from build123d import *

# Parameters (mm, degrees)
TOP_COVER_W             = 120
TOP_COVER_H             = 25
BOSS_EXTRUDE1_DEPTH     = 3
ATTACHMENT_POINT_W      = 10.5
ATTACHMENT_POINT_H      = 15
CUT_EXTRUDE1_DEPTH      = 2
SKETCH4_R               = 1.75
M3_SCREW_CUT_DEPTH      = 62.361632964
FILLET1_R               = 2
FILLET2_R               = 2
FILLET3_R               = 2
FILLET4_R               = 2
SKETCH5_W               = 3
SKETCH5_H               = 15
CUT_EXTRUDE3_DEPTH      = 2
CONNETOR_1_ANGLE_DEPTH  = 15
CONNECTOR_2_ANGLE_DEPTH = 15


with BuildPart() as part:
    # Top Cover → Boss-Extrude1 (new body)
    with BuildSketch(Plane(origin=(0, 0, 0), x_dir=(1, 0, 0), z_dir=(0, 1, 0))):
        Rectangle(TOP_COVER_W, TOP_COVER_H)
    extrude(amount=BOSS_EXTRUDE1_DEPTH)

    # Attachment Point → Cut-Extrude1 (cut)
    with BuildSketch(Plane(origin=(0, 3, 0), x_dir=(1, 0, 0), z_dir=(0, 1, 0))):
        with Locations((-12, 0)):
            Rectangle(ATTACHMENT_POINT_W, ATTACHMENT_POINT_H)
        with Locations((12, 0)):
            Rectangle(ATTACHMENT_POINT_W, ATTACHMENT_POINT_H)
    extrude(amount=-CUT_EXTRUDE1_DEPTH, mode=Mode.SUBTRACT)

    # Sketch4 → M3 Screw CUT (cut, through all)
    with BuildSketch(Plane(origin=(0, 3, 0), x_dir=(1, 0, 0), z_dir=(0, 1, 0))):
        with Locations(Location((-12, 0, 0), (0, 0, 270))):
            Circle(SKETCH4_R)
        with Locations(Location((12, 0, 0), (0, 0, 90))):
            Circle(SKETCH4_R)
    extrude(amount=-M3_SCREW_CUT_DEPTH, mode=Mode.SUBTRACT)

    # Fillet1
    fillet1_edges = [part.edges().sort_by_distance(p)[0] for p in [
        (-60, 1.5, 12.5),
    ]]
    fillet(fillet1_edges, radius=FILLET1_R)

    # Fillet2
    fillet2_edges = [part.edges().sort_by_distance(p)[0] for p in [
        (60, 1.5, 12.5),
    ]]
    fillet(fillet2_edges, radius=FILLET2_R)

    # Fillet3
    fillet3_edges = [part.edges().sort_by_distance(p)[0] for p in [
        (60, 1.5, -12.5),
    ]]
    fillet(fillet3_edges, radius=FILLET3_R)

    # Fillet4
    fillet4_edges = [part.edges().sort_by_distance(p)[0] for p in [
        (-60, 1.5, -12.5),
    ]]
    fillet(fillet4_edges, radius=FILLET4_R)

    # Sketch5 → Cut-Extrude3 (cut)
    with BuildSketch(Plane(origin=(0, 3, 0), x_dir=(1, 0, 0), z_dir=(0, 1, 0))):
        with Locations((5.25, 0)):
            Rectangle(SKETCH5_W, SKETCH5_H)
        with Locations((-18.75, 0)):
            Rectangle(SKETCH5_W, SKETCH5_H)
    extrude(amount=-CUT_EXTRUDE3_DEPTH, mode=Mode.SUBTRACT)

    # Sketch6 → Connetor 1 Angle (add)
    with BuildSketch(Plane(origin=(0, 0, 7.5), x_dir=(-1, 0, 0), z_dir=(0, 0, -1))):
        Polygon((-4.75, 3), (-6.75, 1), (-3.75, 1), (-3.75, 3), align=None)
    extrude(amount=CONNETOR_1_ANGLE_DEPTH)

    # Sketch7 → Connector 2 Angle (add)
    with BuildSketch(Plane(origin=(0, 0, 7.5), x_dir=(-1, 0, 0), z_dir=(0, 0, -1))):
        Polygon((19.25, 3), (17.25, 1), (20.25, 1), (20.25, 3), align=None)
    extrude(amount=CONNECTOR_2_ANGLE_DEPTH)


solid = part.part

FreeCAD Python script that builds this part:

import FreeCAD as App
import Part
import Sketcher


def edges_at(feature, points):
    """Names of the edges that pass closest to the given points."""
    edges = feature.Shape.Edges
    near = lambda p: min(range(len(edges)), key=lambda i: edges[i].distToShape(Part.Vertex(*p))[0])
    return sorted({f"Edge{near(p) + 1}" for p in points})


def add_polygon(sketch, points):
    """Adds a closed chain of lines whose ends are joined by coincident constraints."""
    first, n = sketch.GeometryCount, len(points)
    for a, b in zip(points, points[1:] + points[:1]):
        sketch.addGeometry(Part.LineSegment(App.Vector(*a, 0), App.Vector(*b, 0)), False)
    for i in range(n):
        sketch.addConstraint(Sketcher.Constraint("Coincident", first + i, 2, first + (i + 1) % n, 1))

doc = App.newDocument("Part")
body = doc.addObject("PartDesign::Body", "Body")

# Sketch on XZ plane
sketch1 = doc.addObject("Sketcher::SketchObject", "Sketch")
body.addObject(sketch1)
sketch1.AttachmentSupport = (doc.XZ_Plane, [""])
sketch1.MapMode = "FlatFace"
add_polygon(sketch1, [(-60, -12), (-60, 12), (60, 12), (60, -12)])  # lines 0-3
sketch1.addConstraint([
    Sketcher.Constraint("Vertical", 0),
    Sketcher.Constraint("Horizontal", 1),
    Sketcher.Constraint("Vertical", 2),
    Sketcher.Constraint("Horizontal", 3),
    Sketcher.Constraint("Symmetric", 0, 2, 2, 2, -1, 1),
    Sketcher.Constraint("DistanceX", 1, 1, 1, 2, 120.0),
    Sketcher.Constraint("DistanceY", 0, 1, 0, 2, 25.0),
])
pad1 = doc.addObject("PartDesign::Pad", "Pad")
body.addObject(pad1)
pad1.Profile = sketch1
pad1.Length = 3
pad1.Reversed = True

# Sketch on XZ plane
sketch2 = doc.addObject("Sketcher::SketchObject", "Sketch001")
body.addObject(sketch2)
sketch2.AttachmentSupport = (doc.XZ_Plane, [""])
sketch2.MapMode = "FlatFace"
sketch2.AttachmentOffset = App.Placement(App.Vector(0, 0, -3), App.Rotation())
add_polygon(sketch2, [(-17, -8), (-17, 8), (-7, 8), (-7, -8)])  # lines 0-3
add_polygon(sketch2, [(7, -8), (7, 8), (17, 8), (17, -8)])  # lines 4-7
sketch2.addConstraint([
    Sketcher.Constraint("Vertical", 0),
    Sketcher.Constraint("Horizontal", 1),
    Sketcher.Constraint("Vertical", 2),
    Sketcher.Constraint("Horizontal", 3),
    Sketcher.Constraint("Vertical", 4),
    Sketcher.Constraint("Horizontal", 5),
    Sketcher.Constraint("Vertical", 6),
    Sketcher.Constraint("Horizontal", 7),
    Sketcher.Constraint("Symmetric", 2, 2, 4, 2, -1, 1),
    Sketcher.Constraint("Symmetric", 0, 2, 6, 2, -1, 1),
    Sketcher.Constraint("Horizontal", 1, 2, 4, 2),
    Sketcher.Constraint("DistanceY", 0, 1, 0, 2, 15.0),
    Sketcher.Constraint("DistanceX", 1, 1, 1, 2, 10.5),
    Sketcher.Constraint("DistanceX", 0, 2, 4, 2, 24.0),
])
pocket1 = doc.addObject("PartDesign::Pocket", "Pocket")
body.addObject(pocket1)
pocket1.Profile = sketch2
pocket1.Length = 2
pocket1.Reversed = True

# Sketch on XZ plane
sketch3 = doc.addObject("Sketcher::SketchObject", "Sketch002")
body.addObject(sketch3)
sketch3.AttachmentSupport = (doc.XZ_Plane, [""])
sketch3.MapMode = "FlatFace"
sketch3.AttachmentOffset = App.Placement(App.Vector(0, 0, -3), App.Rotation())
sketch3.addGeometry([
    Part.Circle(App.Vector(-12, 0, 0), App.Vector(0, 0, 1), 1.8),
    Part.Circle(App.Vector(12, 0, 0), App.Vector(0, 0, 1), 1.8),
], False)
sketch3.addConstraint([
    Sketcher.Constraint("Equal", 0, 1),
    Sketcher.Constraint("Symmetric", 0, 3, 1, 3, -1, 1),
    Sketcher.Constraint("PointOnObject", 0, 3, -1),
    Sketcher.Constraint("Diameter", 0, 3.5),
    Sketcher.Constraint("DistanceX", 0, 3, -1, 1, 12.0),
])
pocket2 = doc.addObject("PartDesign::Pocket", "Pocket001")
body.addObject(pocket2)
pocket2.Profile = sketch3
pocket2.Type = "ThroughAll"
pocket2.Reversed = True
doc.recompute()

fillet = doc.addObject("PartDesign::Fillet", "Fillet")
body.addObject(fillet)
fillet.Base = (pocket2, edges_at(pocket2, [(-60, 1.5, 12.5)]))
fillet.Radius = 2
doc.recompute()

fillet2 = doc.addObject("PartDesign::Fillet", "Fillet001")
body.addObject(fillet2)
fillet2.Base = (fillet, edges_at(fillet, [(60, 1.5, 12.5)]))
fillet2.Radius = 2
doc.recompute()

fillet3 = doc.addObject("PartDesign::Fillet", "Fillet002")
body.addObject(fillet3)
fillet3.Base = (fillet2, edges_at(fillet2, [(60, 1.5, -12.5)]))
fillet3.Radius = 2
doc.recompute()

fillet4 = doc.addObject("PartDesign::Fillet", "Fillet003")
body.addObject(fillet4)
fillet4.Base = (fillet3, edges_at(fillet3, [(-60, 1.5, -12.5)]))
fillet4.Radius = 2

# Sketch on XZ plane
sketch4 = doc.addObject("Sketcher::SketchObject", "Sketch003")
body.addObject(sketch4)
sketch4.AttachmentSupport = (doc.XZ_Plane, [""])
sketch4.MapMode = "FlatFace"
sketch4.AttachmentOffset = App.Placement(App.Vector(0, 0, -3), App.Rotation())
add_polygon(sketch4, [(3.8, -7.5), (3.8, 7.5), (6.8, 7.5), (6.8, -7.5)])  # lines 0-3
add_polygon(sketch4, [(-20.2, -7.5), (-20.2, 7.5), (-17.2, 7.5), (-17.2, -7.5)])  # lines 4-7
sketch4.addConstraint([
    Sketcher.Constraint("Vertical", 0),
    Sketcher.Constraint("Horizontal", 1),
    Sketcher.Constraint("Vertical", 2),
    Sketcher.Constraint("Horizontal", 3),
    Sketcher.Constraint("Vertical", 4),
    Sketcher.Constraint("Horizontal", 5),
    Sketcher.Constraint("Vertical", 6),
    Sketcher.Constraint("Horizontal", 7),
    Sketcher.Constraint("Horizontal", 1, 2, 4, 2),
    Sketcher.Constraint("Horizontal", 3, 2, 6, 2),
    Sketcher.Constraint("Equal", 3, 5),
    Sketcher.Constraint("DistanceX", 1, 1, 1, 2, 3.0),
    Sketcher.Constraint("DistanceY", 0, 1, 0, 2, 15.0),
    Sketcher.Constraint("DistanceX", 4, 2, 0, 2, 24.0),
    Sketcher.Constraint("DistanceY", -1, 1, 0, 2, 7.5),
    Sketcher.Constraint("DistanceX", -1, 1, 0, 2, 3.75),
])
pocket3 = doc.addObject("PartDesign::Pocket", "Pocket002")
body.addObject(pocket3)
pocket3.Profile = sketch4
pocket3.Length = 2
pocket3.Reversed = True

# Sketch on XY plane
sketch5 = doc.addObject("Sketcher::SketchObject", "Sketch004")
body.addObject(sketch5)
sketch5.AttachmentSupport = (doc.XY_Plane, [""])
sketch5.MapMode = "FlatFace"
sketch5.AttachmentOffset = App.Placement(App.Vector(0, 0, 7.5), App.Rotation())
add_polygon(sketch5, [(4.8, 3), (6.8, 1), (3.8, 1), (3.8, 3)])  # lines 0-3
sketch5.addConstraint([
    Sketcher.Constraint("Horizontal", 1),
    Sketcher.Constraint("Vertical", 2),
    Sketcher.Constraint("Horizontal", 3),
    Sketcher.Constraint("DistanceX", 1, 2, 1, 1, 3.0),
    Sketcher.Constraint("DistanceX", 3, 1, 3, 2, 1.0),
    Sketcher.Constraint("DistanceY", 2, 1, 2, 2, 2.0),
    Sketcher.Constraint("DistanceY", -1, 1, 0, 2, 1.0),
    Sketcher.Constraint("DistanceX", -1, 1, 0, 2, 6.75),
])
pad2 = doc.addObject("PartDesign::Pad", "Pad001")
body.addObject(pad2)
pad2.Profile = sketch5
pad2.Length = 15
pad2.Reversed = True

# Sketch on XY plane
sketch6 = doc.addObject("Sketcher::SketchObject", "Sketch005")
body.addObject(sketch6)
sketch6.AttachmentSupport = (doc.XY_Plane, [""])
sketch6.MapMode = "FlatFace"
sketch6.AttachmentOffset = App.Placement(App.Vector(0, 0, 7.5), App.Rotation())
add_polygon(sketch6, [(-19.2, 3), (-17.2, 1), (-20.2, 1), (-20.2, 3)])  # lines 0-3
sketch6.addConstraint([
    Sketcher.Constraint("Horizontal", 1),
    Sketcher.Constraint("Vertical", 2),
    Sketcher.Constraint("Horizontal", 3),
    Sketcher.Constraint("DistanceX", 1, 2, 1, 1, 3.0),
    Sketcher.Constraint("DistanceX", 3, 1, 3, 2, 1.0),
    Sketcher.Constraint("DistanceY", 2, 1, 2, 2, 2.0),
    Sketcher.Constraint("DistanceY", -1, 1, 0, 2, 1.0),
    Sketcher.Constraint("DistanceX", 0, 2, -1, 1, 17.25),
])
pad3 = doc.addObject("PartDesign::Pad", "Pad002")
body.addObject(pad3)
pad3.Profile = sketch6
pad3.Length = 15
pad3.Reversed = True

doc.recompute()
